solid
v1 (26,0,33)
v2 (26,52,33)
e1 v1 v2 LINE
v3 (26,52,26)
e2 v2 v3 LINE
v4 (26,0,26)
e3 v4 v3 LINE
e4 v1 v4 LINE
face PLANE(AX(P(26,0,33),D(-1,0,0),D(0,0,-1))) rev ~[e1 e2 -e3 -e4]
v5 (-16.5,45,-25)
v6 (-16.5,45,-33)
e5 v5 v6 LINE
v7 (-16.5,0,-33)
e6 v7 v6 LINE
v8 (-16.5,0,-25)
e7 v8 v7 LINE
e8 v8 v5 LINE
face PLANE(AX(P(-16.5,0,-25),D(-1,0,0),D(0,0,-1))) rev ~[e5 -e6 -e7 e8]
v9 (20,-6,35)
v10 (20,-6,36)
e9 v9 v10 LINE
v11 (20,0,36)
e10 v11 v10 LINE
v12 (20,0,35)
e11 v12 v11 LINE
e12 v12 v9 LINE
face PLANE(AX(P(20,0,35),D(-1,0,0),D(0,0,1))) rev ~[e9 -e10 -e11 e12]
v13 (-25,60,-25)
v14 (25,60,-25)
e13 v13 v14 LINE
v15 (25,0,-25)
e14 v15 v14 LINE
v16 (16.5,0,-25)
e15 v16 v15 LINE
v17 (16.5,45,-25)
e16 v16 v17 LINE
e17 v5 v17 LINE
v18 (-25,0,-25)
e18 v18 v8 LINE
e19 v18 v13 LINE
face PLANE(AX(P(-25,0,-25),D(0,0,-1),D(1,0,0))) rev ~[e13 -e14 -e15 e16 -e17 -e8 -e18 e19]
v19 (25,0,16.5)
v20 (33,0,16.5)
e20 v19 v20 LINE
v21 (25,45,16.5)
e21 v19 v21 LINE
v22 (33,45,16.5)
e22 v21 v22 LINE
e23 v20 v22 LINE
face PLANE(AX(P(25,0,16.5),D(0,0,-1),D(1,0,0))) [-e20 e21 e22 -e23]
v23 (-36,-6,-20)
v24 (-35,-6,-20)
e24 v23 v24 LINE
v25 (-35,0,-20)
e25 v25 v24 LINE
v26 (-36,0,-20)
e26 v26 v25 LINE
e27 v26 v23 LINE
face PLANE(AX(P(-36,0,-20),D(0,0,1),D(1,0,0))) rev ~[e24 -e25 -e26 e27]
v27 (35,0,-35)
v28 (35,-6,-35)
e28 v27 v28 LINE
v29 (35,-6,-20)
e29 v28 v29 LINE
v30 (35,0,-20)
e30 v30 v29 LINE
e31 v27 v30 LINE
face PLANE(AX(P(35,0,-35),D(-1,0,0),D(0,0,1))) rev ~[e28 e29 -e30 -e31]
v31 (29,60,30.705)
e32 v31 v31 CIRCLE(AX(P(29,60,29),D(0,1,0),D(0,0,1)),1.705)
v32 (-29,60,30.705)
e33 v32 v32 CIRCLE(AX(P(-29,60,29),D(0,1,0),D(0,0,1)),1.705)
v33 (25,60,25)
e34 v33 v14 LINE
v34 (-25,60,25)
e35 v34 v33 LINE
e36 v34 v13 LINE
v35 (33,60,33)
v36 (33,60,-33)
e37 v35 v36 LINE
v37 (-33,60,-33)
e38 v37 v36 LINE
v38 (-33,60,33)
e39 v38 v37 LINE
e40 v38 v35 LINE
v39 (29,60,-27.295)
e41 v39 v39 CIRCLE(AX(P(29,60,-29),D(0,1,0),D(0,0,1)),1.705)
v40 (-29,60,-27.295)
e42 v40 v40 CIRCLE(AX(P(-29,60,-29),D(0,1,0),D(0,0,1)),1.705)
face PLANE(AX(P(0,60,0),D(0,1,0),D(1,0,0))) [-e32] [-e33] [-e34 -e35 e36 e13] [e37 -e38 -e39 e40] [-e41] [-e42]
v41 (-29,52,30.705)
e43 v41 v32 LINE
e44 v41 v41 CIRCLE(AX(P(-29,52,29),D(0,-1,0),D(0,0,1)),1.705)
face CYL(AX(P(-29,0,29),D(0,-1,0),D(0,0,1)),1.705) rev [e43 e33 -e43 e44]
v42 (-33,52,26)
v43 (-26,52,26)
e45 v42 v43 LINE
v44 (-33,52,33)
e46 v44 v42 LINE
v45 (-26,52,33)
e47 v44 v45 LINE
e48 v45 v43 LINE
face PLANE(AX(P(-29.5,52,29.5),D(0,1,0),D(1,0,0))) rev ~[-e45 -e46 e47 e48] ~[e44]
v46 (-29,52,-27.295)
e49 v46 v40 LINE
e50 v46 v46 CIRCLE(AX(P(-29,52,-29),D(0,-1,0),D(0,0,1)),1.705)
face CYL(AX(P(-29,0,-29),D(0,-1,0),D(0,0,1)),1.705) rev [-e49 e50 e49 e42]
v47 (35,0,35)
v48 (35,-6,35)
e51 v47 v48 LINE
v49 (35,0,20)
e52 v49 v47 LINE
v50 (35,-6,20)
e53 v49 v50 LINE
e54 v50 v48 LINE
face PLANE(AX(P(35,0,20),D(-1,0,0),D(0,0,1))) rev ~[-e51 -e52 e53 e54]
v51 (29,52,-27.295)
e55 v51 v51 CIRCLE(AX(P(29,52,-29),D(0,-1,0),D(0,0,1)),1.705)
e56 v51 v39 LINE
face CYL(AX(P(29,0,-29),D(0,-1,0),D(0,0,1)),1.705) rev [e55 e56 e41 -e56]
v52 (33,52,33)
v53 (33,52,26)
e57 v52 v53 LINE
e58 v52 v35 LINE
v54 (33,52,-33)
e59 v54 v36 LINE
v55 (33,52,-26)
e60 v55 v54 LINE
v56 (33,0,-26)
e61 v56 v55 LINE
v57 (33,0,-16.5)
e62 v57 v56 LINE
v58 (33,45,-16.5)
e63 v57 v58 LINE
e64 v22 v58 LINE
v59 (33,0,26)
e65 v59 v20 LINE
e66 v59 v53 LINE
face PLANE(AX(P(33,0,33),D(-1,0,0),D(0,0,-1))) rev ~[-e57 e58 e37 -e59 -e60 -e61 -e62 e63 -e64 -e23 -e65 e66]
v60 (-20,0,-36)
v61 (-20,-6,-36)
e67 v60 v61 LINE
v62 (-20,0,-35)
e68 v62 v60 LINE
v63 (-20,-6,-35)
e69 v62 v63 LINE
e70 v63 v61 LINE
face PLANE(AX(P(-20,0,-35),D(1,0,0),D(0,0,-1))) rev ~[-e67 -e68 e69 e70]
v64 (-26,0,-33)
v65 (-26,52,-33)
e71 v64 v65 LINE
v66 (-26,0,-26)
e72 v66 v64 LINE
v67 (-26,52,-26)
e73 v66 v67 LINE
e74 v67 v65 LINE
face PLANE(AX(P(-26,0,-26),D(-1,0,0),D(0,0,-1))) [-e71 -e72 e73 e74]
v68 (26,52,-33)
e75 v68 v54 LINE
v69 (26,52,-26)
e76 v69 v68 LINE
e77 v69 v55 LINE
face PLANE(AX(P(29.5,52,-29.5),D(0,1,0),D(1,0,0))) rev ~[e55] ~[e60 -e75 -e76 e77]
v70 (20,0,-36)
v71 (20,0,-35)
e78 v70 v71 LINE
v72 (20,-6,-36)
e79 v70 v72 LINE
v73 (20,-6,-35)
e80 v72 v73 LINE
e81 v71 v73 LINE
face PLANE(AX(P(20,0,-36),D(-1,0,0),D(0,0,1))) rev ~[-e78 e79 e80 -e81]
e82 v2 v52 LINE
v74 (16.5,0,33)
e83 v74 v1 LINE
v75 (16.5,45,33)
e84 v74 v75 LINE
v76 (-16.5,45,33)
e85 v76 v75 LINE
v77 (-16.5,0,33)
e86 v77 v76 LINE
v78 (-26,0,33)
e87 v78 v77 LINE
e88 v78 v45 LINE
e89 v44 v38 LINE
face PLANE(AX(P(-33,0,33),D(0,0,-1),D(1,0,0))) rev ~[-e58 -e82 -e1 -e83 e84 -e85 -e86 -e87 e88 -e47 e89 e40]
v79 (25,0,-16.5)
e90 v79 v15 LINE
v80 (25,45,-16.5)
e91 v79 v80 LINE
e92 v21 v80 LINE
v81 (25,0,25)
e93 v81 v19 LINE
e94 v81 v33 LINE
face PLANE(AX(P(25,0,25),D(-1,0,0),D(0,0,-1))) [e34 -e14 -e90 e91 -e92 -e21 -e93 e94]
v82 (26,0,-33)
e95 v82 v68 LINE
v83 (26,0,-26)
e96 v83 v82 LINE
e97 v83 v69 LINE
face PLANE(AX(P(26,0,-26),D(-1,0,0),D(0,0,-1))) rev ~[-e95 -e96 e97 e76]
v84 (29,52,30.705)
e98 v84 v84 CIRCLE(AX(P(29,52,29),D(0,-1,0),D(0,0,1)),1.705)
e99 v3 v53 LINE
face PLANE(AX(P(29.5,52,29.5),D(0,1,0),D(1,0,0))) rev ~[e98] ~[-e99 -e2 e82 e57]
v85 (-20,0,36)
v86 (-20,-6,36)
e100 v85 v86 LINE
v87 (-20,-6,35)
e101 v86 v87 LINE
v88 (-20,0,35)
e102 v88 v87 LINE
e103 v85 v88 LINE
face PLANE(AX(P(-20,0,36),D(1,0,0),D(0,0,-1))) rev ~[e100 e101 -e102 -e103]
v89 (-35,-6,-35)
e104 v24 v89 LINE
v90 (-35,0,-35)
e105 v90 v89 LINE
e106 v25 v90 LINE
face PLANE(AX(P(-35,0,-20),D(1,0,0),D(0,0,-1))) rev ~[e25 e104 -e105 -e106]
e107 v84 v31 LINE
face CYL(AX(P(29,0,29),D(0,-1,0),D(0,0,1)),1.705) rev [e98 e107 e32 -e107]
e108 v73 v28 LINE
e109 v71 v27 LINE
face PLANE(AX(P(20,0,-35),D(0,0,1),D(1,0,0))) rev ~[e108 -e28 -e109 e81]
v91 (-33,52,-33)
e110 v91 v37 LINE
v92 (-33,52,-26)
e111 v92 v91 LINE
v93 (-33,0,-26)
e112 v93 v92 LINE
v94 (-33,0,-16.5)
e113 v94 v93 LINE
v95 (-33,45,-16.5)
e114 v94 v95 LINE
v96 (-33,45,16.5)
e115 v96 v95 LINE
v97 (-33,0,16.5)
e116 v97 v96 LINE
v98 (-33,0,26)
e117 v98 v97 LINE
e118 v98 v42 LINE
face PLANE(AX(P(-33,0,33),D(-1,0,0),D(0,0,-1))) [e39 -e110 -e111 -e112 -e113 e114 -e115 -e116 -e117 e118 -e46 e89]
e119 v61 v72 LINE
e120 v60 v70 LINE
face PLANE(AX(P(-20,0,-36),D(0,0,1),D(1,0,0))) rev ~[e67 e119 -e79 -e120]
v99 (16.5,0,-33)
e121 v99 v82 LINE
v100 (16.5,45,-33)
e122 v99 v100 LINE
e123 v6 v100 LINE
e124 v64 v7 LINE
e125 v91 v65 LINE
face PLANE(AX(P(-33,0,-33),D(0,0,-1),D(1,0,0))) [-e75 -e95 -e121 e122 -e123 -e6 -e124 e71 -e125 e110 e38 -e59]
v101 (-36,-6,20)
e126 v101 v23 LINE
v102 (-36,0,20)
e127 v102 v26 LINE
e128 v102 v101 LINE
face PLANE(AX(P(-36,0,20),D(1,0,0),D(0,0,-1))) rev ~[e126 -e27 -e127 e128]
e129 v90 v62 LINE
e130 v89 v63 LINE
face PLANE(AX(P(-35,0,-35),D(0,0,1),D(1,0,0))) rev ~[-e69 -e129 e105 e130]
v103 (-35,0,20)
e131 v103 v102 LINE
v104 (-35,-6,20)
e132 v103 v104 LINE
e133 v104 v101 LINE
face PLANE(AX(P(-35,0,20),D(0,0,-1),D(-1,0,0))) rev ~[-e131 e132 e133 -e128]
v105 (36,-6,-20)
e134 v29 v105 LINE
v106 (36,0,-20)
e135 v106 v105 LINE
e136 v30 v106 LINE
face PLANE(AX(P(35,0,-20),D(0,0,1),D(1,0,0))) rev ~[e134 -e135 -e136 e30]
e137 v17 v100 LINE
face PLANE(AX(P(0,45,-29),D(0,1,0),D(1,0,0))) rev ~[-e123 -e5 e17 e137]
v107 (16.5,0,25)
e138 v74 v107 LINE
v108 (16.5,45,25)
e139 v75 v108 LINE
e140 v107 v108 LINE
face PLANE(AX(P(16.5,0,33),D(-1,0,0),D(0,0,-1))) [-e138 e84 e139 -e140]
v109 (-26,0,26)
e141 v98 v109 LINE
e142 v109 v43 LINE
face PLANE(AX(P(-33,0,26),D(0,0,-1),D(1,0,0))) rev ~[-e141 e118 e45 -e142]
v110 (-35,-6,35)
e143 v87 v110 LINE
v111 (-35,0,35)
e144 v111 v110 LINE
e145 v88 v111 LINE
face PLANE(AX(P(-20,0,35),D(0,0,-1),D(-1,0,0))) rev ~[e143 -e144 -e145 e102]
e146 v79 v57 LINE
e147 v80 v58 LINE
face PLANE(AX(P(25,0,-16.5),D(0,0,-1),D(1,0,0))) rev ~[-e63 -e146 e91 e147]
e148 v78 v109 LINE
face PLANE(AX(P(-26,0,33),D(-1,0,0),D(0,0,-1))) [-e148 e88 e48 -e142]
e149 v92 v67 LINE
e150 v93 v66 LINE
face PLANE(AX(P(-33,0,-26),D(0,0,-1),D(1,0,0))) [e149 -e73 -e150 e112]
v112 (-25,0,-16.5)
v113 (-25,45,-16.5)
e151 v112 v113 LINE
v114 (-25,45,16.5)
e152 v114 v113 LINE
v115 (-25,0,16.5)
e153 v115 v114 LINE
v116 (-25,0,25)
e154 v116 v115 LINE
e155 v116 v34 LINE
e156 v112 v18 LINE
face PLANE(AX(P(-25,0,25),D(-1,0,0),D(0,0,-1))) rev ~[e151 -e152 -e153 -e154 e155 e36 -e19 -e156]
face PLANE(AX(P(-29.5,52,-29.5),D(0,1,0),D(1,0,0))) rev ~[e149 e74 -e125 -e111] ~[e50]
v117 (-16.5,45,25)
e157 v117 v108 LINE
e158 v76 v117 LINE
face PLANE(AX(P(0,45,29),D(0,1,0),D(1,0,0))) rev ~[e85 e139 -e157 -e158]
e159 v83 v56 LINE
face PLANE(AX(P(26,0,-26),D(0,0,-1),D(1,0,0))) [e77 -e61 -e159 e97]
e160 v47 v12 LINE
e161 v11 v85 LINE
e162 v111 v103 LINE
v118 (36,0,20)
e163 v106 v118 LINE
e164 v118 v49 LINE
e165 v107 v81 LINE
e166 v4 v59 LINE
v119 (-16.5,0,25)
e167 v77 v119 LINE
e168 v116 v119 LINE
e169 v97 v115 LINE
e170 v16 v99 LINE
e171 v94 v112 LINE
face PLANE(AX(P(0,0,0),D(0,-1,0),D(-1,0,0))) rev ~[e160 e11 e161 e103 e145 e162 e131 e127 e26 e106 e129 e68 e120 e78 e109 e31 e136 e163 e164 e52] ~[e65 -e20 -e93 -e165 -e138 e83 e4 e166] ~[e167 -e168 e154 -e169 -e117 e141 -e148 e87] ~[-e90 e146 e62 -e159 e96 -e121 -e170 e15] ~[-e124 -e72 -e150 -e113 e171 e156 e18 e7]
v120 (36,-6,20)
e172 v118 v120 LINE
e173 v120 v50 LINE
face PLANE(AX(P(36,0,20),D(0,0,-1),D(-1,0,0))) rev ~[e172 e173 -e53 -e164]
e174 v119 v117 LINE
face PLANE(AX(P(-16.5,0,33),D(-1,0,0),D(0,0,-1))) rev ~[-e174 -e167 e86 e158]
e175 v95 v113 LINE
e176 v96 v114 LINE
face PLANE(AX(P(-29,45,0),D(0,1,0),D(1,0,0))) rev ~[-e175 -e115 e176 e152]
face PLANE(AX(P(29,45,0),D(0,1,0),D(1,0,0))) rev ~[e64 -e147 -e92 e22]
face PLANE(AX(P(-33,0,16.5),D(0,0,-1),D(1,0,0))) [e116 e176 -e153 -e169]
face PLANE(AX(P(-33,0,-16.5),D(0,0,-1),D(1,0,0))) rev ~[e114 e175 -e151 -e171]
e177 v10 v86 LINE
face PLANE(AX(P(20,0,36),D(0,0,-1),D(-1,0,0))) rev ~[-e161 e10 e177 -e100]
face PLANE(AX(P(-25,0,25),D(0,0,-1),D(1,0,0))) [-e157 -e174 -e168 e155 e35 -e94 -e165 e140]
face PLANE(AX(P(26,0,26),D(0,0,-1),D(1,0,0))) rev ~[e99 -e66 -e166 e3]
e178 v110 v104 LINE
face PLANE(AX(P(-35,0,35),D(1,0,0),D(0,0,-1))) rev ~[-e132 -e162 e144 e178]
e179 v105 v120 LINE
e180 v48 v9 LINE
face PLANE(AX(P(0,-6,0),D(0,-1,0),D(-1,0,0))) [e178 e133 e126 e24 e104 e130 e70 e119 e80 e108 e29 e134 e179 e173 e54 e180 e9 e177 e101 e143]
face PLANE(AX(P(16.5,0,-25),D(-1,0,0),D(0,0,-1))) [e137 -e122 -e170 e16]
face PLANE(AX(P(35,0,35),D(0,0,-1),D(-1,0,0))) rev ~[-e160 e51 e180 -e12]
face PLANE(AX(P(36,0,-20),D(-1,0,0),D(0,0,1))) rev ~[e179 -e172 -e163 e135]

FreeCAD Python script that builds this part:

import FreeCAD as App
import Part
import Sketcher

V = App.Vector
Q = App.Units.Quantity


def add_polygon(sketch, points):
    """Adds a closed chain of lines whose ends are joined by coincident constraints."""
    first, n = sketch.GeometryCount, len(points)
    for a, b in zip(points, points[1:] + points[:1]):
        sketch.addGeometry(Part.LineSegment(App.Vector(*a, 0), App.Vector(*b, 0)), False)
    for i in range(n):
        sketch.addConstraint(Sketcher.Constraint("Coincident", first + i, 2, first + (i + 1) % n, 1))

doc = App.newDocument("Part")
body = doc.addObject("PartDesign::Body", "Body")

sketch1 = body.newObject("Sketcher::SketchObject", "Sketch")
sketch1.AttachmentSupport = (doc.getObject("XZ_Plane"), [""])
sketch1.MapMode = "FlatFace"
add_polygon(sketch1, [(20, -36), (-20, -36), (-20, -35), (-35, -35), (-35, -20), (-36, -20), (-36, 20), (-35, 20), (-35, 35), (-20, 35), (-20, 36), (20, 36), (20, 35), (35, 35), (35, 20), (36, 20), (36, -20), (35, -20), (35, -35), (20, -35)])
sketch1.addConstraint(Sketcher.Constraint("Horizontal", 0))
sketch1.addConstraint(Sketcher.Constraint("Vertical", 1))
sketch1.addConstraint(Sketcher.Constraint("Horizontal", 2))
sketch1.addConstraint(Sketcher.Constraint("Vertical", 3))
sketch1.addConstraint(Sketcher.Constraint("Horizontal", 4))
sketch1.addConstraint(Sketcher.Constraint("Vertical", 5))
sketch1.addConstraint(Sketcher.Constraint("Horizontal", 6))
sketch1.addConstraint(Sketcher.Constraint("Vertical", 7))
sketch1.addConstraint(Sketcher.Constraint("Horizontal", 8))
sketch1.addConstraint(Sketcher.Constraint("Vertical", 9))
sketch1.addConstraint(Sketcher.Constraint("Horizontal", 10))
sketch1.addConstraint(Sketcher.Constraint("Vertical", 11))
sketch1.addConstraint(Sketcher.Constraint("Horizontal", 12))
sketch1.addConstraint(Sketcher.Constraint("Vertical", 13))
sketch1.addConstraint(Sketcher.Constraint("Horizontal", 14))
sketch1.addConstraint(Sketcher.Constraint("Vertical", 15))
sketch1.addConstraint(Sketcher.Constraint("Horizontal", 16))
sketch1.addConstraint(Sketcher.Constraint("Vertical", 17))
sketch1.addConstraint(Sketcher.Constraint("Horizontal", 18))
sketch1.addConstraint(Sketcher.Constraint("Vertical", 19))
sketch1.addConstraint(Sketcher.Constraint("Symmetric", 0, 2, 10, 2, -1, 1))
sketch1.addConstraint(Sketcher.Constraint("Symmetric", 2, 2, 12, 2, -1, 1))
sketch1.addConstraint(Sketcher.Constraint("Symmetric", 4, 2, 14, 2, -1, 1))
sketch1.addConstraint(Sketcher.Constraint("Symmetric", 6, 2, 16, 2, -1, 1))
sketch1.addConstraint(Sketcher.Constraint("Symmetric", 8, 2, 18, 2, -1, 1))
sketch1.addConstraint(Sketcher.Constraint("Symmetric", 8, 2, 11, 2, -2))
sketch1.addConstraint(Sketcher.Constraint("Symmetric", 6, 2, 13, 2, -2))
sketch1.addConstraint(Sketcher.Constraint("Equal", 16, 1))
sketch1.addConstraint(Sketcher.Constraint("Equal", 18, 3))
sketch1.addConstraint(Sketcher.Constraint("Equal", 10, 5))
sketch1.addConstraint(Sketcher.Constraint("DistanceX", 0, 2, 0, 1, Q("40 mm")))
sketch1.addConstraint(Sketcher.Constraint("DistanceX", 2, 2, 2, 1, Q("15 mm")))
sketch1.addConstraint(Sketcher.Constraint("DistanceX", 4, 2, 4, 1, Q("1 mm")))
pad1 = body.newObject("PartDesign::Pad", "Pad")
pad1.Profile = sketch1
pad1.Length = 6

sketch2 = body.newObject("Sketcher::SketchObject", "Sketch001")
sketch2.AttachmentSupport = (doc.getObject("XZ_Plane"), [""])
sketch2.MapMode = "FlatFace"
add_polygon(sketch2, [(-33, -33), (-33, 33), (33, 33), (33, -33)])
sketch2.addGeometry(Part.Circle(V(-29, 29, 0), V(0, 0, 1), 1.7), False)
sketch2.addGeometry(Part.Circle(V(29, 29, 0), V(0, 0, 1), 1.7), False)
sketch2.addGeometry(Part.Circle(V(-29, -29, 0), V(0, 0, 1), 1.7), False)
add_polygon(sketch2, [(25, 25), (-25, 25), (-25, -25), (25, -25)])
sketch2.addGeometry(Part.Circle(V(29, -29, 0), V(0, 0, 1), 1.7), False)
sketch2.addConstraint(Sketcher.Constraint("Vertical", 0))
sketch2.addConstraint(Sketcher.Constraint("Horizontal", 1))
sketch2.addConstraint(Sketcher.Constraint("Vertical", 2))
sketch2.addConstraint(Sketcher.Constraint("Horizontal", 3))
sketch2.addConstraint(Sketcher.Constraint("Horizontal", 7))
sketch2.addConstraint(Sketcher.Constraint("Vertical", 8))
sketch2.addConstraint(Sketcher.Constraint("Horizontal", 9))
sketch2.addConstraint(Sketcher.Constraint("Vertical", 10))
sketch2.addConstraint(Sketcher.Constraint("Equal", 4, 5))
sketch2.addConstraint(Sketcher.Constraint("Equal", 5, 6))
sketch2.addConstraint(Sketcher.Constraint("Equal", 6, 11))
sketch2.addConstraint(Sketcher.Constraint("Symmetric", 5, 3, 6, 3, -1, 1))
sketch2.addConstraint(Sketcher.Constraint("Symmetric", 4, 3, 11, 3, -1, 1))
sketch2.addConstraint(Sketcher.Constraint("Symmetric", 0, 2, 2, 2, -1, 1))
sketch2.addConstraint(Sketcher.Constraint("Symmetric", 7, 2, 9, 2, -1, 1))
sketch2.addConstraint(Sketcher.Constraint("Symmetric", 4, 3, 5, 3, -2))
sketch2.addConstraint(Sketcher.Constraint("Equal", 3, 0))
sketch2.addConstraint(Sketcher.Constraint("Equal", 9, 8))
sketch2.addConstraint(Sketcher.Constraint("Diameter", 4, Q("3.41 mm")))
sketch2.addConstraint(Sketcher.Constraint("DistanceX", 1, 1, 1, 2, Q("66 mm")))
sketch2.addConstraint(Sketcher.Constraint("DistanceX", 7, 2, 7, 1, Q("50 mm")))
sketch2.addConstraint(Sketcher.Constraint("DistanceX", 4, 3, -1, 1, Q("29 mm")))
sketch2.addConstraint(Sketcher.Constraint("DistanceY", -1, 1, 4, 3, Q("29 mm")))
pad2 = body.newObject("PartDesign::Pad", "Pad001")
pad2.Profile = sketch2
pad2.Length = 60
pad2.Reversed = True

sketch3 = body.newObject("Sketcher::SketchObject", "Sketch002")
sketch3.AttachmentSupport = (doc.getObject("XZ_Plane"), [""])
sketch3.MapMode = "FlatFace"
add_polygon(sketch3, [(-33, -33), (-33, -26), (-26, -26), (-26, -33)])
add_polygon(sketch3, [(26, -33), (26, -26), (33, -26), (33, -33)])
add_polygon(sketch3, [(26, 26), (26, 33), (33, 33), (33, 26)])
add_polygon(sketch3, [(-33, 26), (-33, 33), (-26, 33), (-26, 26)])
sketch3.addConstraint(Sketcher.Constraint("Vertical", 0))
sketch3.addConstraint(Sketcher.Constraint("Horizontal", 1))
sketch3.addConstraint(Sketcher.Constraint("Vertical", 2))
sketch3.addConstraint(Sketcher.Constraint("Horizontal", 3))
sketch3.addConstraint(Sketcher.Constraint("Vertical", 4))
sketch3.addConstraint(Sketcher.Constraint("Horizontal", 5))
sketch3.addConstraint(Sketcher.Constraint("Vertical", 6))
sketch3.addConstraint(Sketcher.Constraint("Horizontal", 7))
sketch3.addConstraint(Sketcher.Constraint("Vertical", 8))
sketch3.addConstraint(Sketcher.Constraint("Horizontal", 9))
sketch3.addConstraint(Sketcher.Constraint("Vertical", 10))
sketch3.addConstraint(Sketcher.Constraint("Horizontal", 11))
sketch3.addConstraint(Sketcher.Constraint("Vertical", 12))
sketch3.addConstraint(Sketcher.Constraint("Horizontal", 13))
sketch3.addConstraint(Sketcher.Constraint("Vertical", 14))
sketch3.addConstraint(Sketcher.Constraint("Horizontal", 15))
sketch3.addConstraint(Sketcher.Constraint("Symmetric", 2, 2, 8, 2, -1, 1))
sketch3.addConstraint(Sketcher.Constraint("Symmetric", 0, 2, 10, 2, -1, 1))
sketch3.addConstraint(Sketcher.Constraint("Symmetric", 6, 2, 12, 2, -1, 1))
sketch3.addConstraint(Sketcher.Constraint("Symmetric", 4, 2, 14, 2, -1, 1))
sketch3.addConstraint(Sketcher.Constraint("Symmetric", 1, 2, 4, 2, -2))
sketch3.addConstraint(Sketcher.Constraint("Symmetric", 3, 2, 6, 2, -2))
sketch3.addConstraint(Sketcher.Constraint("Equal", 15, 0))
sketch3.addConstraint(Sketcher.Constraint("DistanceX", 1, 1, 1, 2, Q("7 mm")))
sketch3.addConstraint(Sketcher.Constraint("DistanceX", 0, 2, -1, 1, Q("33 mm")))
sketch3.addConstraint(Sketcher.Constraint("DistanceY", 0, 2, -1, 1, Q("26 mm")))
pocket1 = body.newObject("PartDesign::Pocket", "Pocket")
pocket1.Profile = sketch3
pocket1.Length = 52

sketch4 = body.newObject("Sketcher::SketchObject", "Sketch003")
sketch4.AttachmentSupport = (doc.getObject("XZ_Plane"), [""])
sketch4.MapMode = "FlatFace"
add_polygon(sketch4, [(-16, -33), (-16, -25), (16, -25), (16, -33)])
add_polygon(sketch4, [(-16, 25), (-16, 33), (16, 33), (16, 25)])
add_polygon(sketch4, [(25, -16), (25, 16), (33, 16), (33, -16)])
add_polygon(sketch4, [(-33, -16), (-33, 16), (-25, 16), (-25, -16)])
sketch4.addConstraint(Sketcher.Constraint("Vertical", 0))
sketch4.addConstraint(Sketcher.Constraint("Horizontal", 1))
sketch4.addConstraint(Sketcher.Constraint("Vertical", 2))
sketch4.addConstraint(Sketcher.Constraint("Horizontal", 3))
sketch4.addConstraint(Sketcher.Constraint("Vertical", 4))
sketch4.addConstraint(Sketcher.Constraint("Horizontal", 5))
sketch4.addConstraint(Sketcher.Constraint("Vertical", 6))
sketch4.addConstraint(Sketcher.Constraint("Horizontal", 7))
sketch4.addConstraint(Sketcher.Constraint("Vertical", 8))
sketch4.addConstraint(Sketcher.Constraint("Horizontal", 9))
sketch4.addConstraint(Sketcher.Constraint("Vertical", 10))
sketch4.addConstraint(Sketcher.Constraint("Horizontal", 11))
sketch4.addConstraint(Sketcher.Constraint("Vertical", 12))
sketch4.addConstraint(Sketcher.Constraint("Horizontal", 13))
sketch4.addConstraint(Sketcher.Constraint("Vertical", 14))
sketch4.addConstraint(Sketcher.Constraint("Horizontal", 15))
sketch4.addConstraint(Sketcher.Constraint("Symmetric", 2, 2, 4, 2, -1, 1))
sketch4.addConstraint(Sketcher.Constraint("Symmetric", 0, 2, 6, 2, -1, 1))
sketch4.addConstraint(Sketcher.Constraint("Symmetric", 10, 2, 12, 2, -1, 1))
sketch4.addConstraint(Sketcher.Constraint("Symmetric", 8, 2, 14, 2, -1, 1))
sketch4.addConstraint(Sketcher.Constraint("Horizontal", 9, 2, 12, 2))
sketch4.addConstraint(Sketcher.Constraint("Vertical", 3, 2, 4, 2))
sketch4.addConstraint(Sketcher.Constraint("Equal", 15, 0))
sketch4.addConstraint(Sketcher.Constraint("Equal", 7, 8))
sketch4.addConstraint(Sketcher.Constraint("DistanceX", 1, 1, 1, 2, Q("33 mm")))
sketch4.addConstraint(Sketcher.Constraint("DistanceX", 9, 1, 9, 2, Q("8 mm")))
sketch4.addConstraint(Sketcher.Constraint("DistanceY", 0, 2, -1, 1, Q("25 mm")))
sketch4.addConstraint(Sketcher.Constraint("DistanceX", -1, 1, 8, 2, Q("25 mm")))
pocket2 = body.newObject("PartDesign::Pocket", "Pocket001")
pocket2.Profile = sketch4
pocket2.Length = 45

doc.recompute()
